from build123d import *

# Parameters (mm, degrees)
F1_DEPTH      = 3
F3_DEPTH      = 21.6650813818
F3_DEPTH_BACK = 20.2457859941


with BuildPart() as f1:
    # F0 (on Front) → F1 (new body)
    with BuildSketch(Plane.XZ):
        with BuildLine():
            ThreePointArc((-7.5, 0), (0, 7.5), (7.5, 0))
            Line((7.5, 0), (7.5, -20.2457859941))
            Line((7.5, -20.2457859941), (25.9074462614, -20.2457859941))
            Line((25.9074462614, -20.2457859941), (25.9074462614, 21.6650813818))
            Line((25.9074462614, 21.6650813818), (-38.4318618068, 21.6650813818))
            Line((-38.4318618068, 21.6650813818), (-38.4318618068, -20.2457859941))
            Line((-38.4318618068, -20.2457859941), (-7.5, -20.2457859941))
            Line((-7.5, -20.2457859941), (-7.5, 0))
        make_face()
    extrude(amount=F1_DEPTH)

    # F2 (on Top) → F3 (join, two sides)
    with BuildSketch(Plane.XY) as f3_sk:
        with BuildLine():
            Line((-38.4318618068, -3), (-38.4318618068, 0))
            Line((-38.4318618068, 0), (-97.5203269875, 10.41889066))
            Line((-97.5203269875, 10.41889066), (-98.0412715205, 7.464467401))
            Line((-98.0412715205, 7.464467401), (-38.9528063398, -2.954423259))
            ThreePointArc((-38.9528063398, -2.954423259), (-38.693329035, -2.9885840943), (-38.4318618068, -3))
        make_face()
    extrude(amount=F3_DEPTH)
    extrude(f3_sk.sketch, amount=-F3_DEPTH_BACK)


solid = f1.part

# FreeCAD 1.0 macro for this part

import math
import FreeCAD as App
import Part
import Sketcher
from FreeCAD import Vector
Q = App.Units.Quantity

doc = App.newDocument("Part")
body = doc.addObject("PartDesign::Body", "Body")

sketch1 = body.newObject("Sketcher::SketchObject", "Sketch")
sketch1.AttachmentSupport = (doc.getObject("XZ_Plane"), [""])
sketch1.MapMode = "FlatFace"
sketch1.addGeometry(Part.ArcOfCircle(Part.Circle(Vector(0, 0, 0), Vector(0, 0, 1), 8), math.radians(0), math.radians(180)), False)
sketch1.addGeometry(Part.LineSegment(Vector(8, 0, 0), Vector(8, -20, 0)), False)
sketch1.addGeometry(Part.LineSegment(Vector(8, -20, 0), Vector(26, -20, 0)), False)
sketch1.addGeometry(Part.LineSegment(Vector(26, -20, 0), Vector(26, 22, 0)), False)
sketch1.addGeometry(Part.LineSegment(Vector(26, 22, 0), Vector(-38, 22, 0)), False)
sketch1.addGeometry(Part.LineSegment(Vector(-38, 22, 0), Vector(-38, -20, 0)), False)
sketch1.addGeometry(Part.LineSegment(Vector(-38, -20, 0), Vector(-8, -20, 0)), False)
sketch1.addGeometry(Part.LineSegment(Vector(-8, -20, 0), Vector(-8, 0, 0)), False)
sketch1.addConstraint(Sketcher.Constraint("Tangent", 0, 1, 1, 1))
sketch1.addConstraint(Sketcher.Constraint("Coincident", 1, 2, 2, 1))
sketch1.addConstraint(Sketcher.Constraint("Coincident", 2, 2, 3, 1))
sketch1.addConstraint(Sketcher.Constraint("Coincident", 3, 2, 4, 1))
sketch1.addConstraint(Sketcher.Constraint("Coincident", 4, 2, 5, 1))
sketch1.addConstraint(Sketcher.Constraint("Coincident", 5, 2, 6, 1))
sketch1.addConstraint(Sketcher.Constraint("Coincident", 6, 2, 7, 1))
sketch1.addConstraint(Sketcher.Constraint("Tangent", 7, 2, 0, 2))
sketch1.addConstraint(Sketcher.Constraint("Vertical", 1))
sketch1.addConstraint(Sketcher.Constraint("Horizontal", 2))
sketch1.addConstraint(Sketcher.Constraint("Vertical", 3))
sketch1.addConstraint(Sketcher.Constraint("Horizontal", 4))
sketch1.addConstraint(Sketcher.Constraint("Vertical", 5))
sketch1.addConstraint(Sketcher.Constraint("Horizontal", 6))
sketch1.addConstraint(Sketcher.Constraint("Vertical", 7))
sketch1.addConstraint(Sketcher.Constraint("Coincident", 0, 3, -1, 1))
sketch1.addConstraint(Sketcher.Constraint("Horizontal", 2, 2, 5, 2))
sketch1.addConstraint(Sketcher.Constraint("Radius", 0, Q("7.5 mm")))
sketch1.addConstraint(Sketcher.Constraint("DistanceX", 4, 2, 4, 1, Q("64.339308 mm")))
sketch1.addConstraint(Sketcher.Constraint("DistanceX", 6, 1, 6, 2, Q("30.931862 mm")))
sketch1.addConstraint(Sketcher.Constraint("DistanceY", 1, 2, 1, 1, Q("20.245786 mm")))
sketch1.addConstraint(Sketcher.Constraint("DistanceY", 3, 1, 3, 2, Q("41.910867 mm")))
pad1 = body.newObject("PartDesign::Pad", "Pad")
pad1.Profile = sketch1
pad1.Length = 3

sketch2 = body.newObject("Sketcher::SketchObject", "Sketch001")
sketch2.AttachmentSupport = (doc.getObject("XY_Plane"), [""])
sketch2.MapMode = "FlatFace"
sketch2.addGeometry(Part.LineSegment(Vector(-38.4, -3, 0), Vector(-38.4, 0, 0)), False)
sketch2.addGeometry(Part.LineSegment(Vector(-38.4, 0, 0), Vector(-97.5, 10.4, 0)), False)
sketch2.addGeometry(Part.LineSegment(Vector(-97.5, 10.4, 0), Vector(-98, 7.5, 0)), False)
sketch2.addGeometry(Part.LineSegment(Vector(-98, 7.5, 0), Vector(-39, -3, 0)), False)
sketch2.addGeometry(Part.ArcOfCircle(Part.Circle(Vector(-38.4, 0, 0), Vector(0, 0, 1), 3), math.radians(-100), math.radians(-90)), False)
sketch2.addConstraint(Sketcher.Constraint("Coincident", 0, 2, 1, 1))
sketch2.addConstraint(Sketcher.Constraint("Coincident", 1, 2, 2, 1))
sketch2.addConstraint(Sketcher.Constraint("Coincident", 2, 2, 3, 1))
sketch2.addConstraint(Sketcher.Constraint("Tangent", 3, 2, 4, 1))
sketch2.addConstraint(Sketcher.Constraint("Coincident", 4, 2, 0, 1))
sketch2.addConstraint(Sketcher.Constraint("Vertical", 0))
sketch2.addConstraint(Sketcher.Constraint("Coincident", 0, 2, 4, 3))
sketch2.addConstraint(Sketcher.Constraint("PointOnObject", 4, 3, -1))
sketch2.addConstraint(Sketcher.Constraint("Perpendicular", 1, 2))
sketch2.addConstraint(Sketcher.Constraint("Perpendicular", 2, 3))
sketch2.addConstraint(Sketcher.Constraint("Radius", 4, Q("3 mm")))
sketch2.addConstraint(Sketcher.Constraint("Angle", 1, Q("170 deg")))
sketch2.addConstraint(Sketcher.Constraint("Distance", 1, Q("60 mm")))
sketch2.addConstraint(Sketcher.Constraint("DistanceX", 4, 3, -1, 1, Q("38.431862 mm")))
pad2 = body.newObject("PartDesign::Pad", "Pad001")
pad2.Profile = sketch2
pad2.Type = "TwoLengths"
pad2.Length = 21.665081
pad2.Length2 = 20.245786

doc.recompute()
